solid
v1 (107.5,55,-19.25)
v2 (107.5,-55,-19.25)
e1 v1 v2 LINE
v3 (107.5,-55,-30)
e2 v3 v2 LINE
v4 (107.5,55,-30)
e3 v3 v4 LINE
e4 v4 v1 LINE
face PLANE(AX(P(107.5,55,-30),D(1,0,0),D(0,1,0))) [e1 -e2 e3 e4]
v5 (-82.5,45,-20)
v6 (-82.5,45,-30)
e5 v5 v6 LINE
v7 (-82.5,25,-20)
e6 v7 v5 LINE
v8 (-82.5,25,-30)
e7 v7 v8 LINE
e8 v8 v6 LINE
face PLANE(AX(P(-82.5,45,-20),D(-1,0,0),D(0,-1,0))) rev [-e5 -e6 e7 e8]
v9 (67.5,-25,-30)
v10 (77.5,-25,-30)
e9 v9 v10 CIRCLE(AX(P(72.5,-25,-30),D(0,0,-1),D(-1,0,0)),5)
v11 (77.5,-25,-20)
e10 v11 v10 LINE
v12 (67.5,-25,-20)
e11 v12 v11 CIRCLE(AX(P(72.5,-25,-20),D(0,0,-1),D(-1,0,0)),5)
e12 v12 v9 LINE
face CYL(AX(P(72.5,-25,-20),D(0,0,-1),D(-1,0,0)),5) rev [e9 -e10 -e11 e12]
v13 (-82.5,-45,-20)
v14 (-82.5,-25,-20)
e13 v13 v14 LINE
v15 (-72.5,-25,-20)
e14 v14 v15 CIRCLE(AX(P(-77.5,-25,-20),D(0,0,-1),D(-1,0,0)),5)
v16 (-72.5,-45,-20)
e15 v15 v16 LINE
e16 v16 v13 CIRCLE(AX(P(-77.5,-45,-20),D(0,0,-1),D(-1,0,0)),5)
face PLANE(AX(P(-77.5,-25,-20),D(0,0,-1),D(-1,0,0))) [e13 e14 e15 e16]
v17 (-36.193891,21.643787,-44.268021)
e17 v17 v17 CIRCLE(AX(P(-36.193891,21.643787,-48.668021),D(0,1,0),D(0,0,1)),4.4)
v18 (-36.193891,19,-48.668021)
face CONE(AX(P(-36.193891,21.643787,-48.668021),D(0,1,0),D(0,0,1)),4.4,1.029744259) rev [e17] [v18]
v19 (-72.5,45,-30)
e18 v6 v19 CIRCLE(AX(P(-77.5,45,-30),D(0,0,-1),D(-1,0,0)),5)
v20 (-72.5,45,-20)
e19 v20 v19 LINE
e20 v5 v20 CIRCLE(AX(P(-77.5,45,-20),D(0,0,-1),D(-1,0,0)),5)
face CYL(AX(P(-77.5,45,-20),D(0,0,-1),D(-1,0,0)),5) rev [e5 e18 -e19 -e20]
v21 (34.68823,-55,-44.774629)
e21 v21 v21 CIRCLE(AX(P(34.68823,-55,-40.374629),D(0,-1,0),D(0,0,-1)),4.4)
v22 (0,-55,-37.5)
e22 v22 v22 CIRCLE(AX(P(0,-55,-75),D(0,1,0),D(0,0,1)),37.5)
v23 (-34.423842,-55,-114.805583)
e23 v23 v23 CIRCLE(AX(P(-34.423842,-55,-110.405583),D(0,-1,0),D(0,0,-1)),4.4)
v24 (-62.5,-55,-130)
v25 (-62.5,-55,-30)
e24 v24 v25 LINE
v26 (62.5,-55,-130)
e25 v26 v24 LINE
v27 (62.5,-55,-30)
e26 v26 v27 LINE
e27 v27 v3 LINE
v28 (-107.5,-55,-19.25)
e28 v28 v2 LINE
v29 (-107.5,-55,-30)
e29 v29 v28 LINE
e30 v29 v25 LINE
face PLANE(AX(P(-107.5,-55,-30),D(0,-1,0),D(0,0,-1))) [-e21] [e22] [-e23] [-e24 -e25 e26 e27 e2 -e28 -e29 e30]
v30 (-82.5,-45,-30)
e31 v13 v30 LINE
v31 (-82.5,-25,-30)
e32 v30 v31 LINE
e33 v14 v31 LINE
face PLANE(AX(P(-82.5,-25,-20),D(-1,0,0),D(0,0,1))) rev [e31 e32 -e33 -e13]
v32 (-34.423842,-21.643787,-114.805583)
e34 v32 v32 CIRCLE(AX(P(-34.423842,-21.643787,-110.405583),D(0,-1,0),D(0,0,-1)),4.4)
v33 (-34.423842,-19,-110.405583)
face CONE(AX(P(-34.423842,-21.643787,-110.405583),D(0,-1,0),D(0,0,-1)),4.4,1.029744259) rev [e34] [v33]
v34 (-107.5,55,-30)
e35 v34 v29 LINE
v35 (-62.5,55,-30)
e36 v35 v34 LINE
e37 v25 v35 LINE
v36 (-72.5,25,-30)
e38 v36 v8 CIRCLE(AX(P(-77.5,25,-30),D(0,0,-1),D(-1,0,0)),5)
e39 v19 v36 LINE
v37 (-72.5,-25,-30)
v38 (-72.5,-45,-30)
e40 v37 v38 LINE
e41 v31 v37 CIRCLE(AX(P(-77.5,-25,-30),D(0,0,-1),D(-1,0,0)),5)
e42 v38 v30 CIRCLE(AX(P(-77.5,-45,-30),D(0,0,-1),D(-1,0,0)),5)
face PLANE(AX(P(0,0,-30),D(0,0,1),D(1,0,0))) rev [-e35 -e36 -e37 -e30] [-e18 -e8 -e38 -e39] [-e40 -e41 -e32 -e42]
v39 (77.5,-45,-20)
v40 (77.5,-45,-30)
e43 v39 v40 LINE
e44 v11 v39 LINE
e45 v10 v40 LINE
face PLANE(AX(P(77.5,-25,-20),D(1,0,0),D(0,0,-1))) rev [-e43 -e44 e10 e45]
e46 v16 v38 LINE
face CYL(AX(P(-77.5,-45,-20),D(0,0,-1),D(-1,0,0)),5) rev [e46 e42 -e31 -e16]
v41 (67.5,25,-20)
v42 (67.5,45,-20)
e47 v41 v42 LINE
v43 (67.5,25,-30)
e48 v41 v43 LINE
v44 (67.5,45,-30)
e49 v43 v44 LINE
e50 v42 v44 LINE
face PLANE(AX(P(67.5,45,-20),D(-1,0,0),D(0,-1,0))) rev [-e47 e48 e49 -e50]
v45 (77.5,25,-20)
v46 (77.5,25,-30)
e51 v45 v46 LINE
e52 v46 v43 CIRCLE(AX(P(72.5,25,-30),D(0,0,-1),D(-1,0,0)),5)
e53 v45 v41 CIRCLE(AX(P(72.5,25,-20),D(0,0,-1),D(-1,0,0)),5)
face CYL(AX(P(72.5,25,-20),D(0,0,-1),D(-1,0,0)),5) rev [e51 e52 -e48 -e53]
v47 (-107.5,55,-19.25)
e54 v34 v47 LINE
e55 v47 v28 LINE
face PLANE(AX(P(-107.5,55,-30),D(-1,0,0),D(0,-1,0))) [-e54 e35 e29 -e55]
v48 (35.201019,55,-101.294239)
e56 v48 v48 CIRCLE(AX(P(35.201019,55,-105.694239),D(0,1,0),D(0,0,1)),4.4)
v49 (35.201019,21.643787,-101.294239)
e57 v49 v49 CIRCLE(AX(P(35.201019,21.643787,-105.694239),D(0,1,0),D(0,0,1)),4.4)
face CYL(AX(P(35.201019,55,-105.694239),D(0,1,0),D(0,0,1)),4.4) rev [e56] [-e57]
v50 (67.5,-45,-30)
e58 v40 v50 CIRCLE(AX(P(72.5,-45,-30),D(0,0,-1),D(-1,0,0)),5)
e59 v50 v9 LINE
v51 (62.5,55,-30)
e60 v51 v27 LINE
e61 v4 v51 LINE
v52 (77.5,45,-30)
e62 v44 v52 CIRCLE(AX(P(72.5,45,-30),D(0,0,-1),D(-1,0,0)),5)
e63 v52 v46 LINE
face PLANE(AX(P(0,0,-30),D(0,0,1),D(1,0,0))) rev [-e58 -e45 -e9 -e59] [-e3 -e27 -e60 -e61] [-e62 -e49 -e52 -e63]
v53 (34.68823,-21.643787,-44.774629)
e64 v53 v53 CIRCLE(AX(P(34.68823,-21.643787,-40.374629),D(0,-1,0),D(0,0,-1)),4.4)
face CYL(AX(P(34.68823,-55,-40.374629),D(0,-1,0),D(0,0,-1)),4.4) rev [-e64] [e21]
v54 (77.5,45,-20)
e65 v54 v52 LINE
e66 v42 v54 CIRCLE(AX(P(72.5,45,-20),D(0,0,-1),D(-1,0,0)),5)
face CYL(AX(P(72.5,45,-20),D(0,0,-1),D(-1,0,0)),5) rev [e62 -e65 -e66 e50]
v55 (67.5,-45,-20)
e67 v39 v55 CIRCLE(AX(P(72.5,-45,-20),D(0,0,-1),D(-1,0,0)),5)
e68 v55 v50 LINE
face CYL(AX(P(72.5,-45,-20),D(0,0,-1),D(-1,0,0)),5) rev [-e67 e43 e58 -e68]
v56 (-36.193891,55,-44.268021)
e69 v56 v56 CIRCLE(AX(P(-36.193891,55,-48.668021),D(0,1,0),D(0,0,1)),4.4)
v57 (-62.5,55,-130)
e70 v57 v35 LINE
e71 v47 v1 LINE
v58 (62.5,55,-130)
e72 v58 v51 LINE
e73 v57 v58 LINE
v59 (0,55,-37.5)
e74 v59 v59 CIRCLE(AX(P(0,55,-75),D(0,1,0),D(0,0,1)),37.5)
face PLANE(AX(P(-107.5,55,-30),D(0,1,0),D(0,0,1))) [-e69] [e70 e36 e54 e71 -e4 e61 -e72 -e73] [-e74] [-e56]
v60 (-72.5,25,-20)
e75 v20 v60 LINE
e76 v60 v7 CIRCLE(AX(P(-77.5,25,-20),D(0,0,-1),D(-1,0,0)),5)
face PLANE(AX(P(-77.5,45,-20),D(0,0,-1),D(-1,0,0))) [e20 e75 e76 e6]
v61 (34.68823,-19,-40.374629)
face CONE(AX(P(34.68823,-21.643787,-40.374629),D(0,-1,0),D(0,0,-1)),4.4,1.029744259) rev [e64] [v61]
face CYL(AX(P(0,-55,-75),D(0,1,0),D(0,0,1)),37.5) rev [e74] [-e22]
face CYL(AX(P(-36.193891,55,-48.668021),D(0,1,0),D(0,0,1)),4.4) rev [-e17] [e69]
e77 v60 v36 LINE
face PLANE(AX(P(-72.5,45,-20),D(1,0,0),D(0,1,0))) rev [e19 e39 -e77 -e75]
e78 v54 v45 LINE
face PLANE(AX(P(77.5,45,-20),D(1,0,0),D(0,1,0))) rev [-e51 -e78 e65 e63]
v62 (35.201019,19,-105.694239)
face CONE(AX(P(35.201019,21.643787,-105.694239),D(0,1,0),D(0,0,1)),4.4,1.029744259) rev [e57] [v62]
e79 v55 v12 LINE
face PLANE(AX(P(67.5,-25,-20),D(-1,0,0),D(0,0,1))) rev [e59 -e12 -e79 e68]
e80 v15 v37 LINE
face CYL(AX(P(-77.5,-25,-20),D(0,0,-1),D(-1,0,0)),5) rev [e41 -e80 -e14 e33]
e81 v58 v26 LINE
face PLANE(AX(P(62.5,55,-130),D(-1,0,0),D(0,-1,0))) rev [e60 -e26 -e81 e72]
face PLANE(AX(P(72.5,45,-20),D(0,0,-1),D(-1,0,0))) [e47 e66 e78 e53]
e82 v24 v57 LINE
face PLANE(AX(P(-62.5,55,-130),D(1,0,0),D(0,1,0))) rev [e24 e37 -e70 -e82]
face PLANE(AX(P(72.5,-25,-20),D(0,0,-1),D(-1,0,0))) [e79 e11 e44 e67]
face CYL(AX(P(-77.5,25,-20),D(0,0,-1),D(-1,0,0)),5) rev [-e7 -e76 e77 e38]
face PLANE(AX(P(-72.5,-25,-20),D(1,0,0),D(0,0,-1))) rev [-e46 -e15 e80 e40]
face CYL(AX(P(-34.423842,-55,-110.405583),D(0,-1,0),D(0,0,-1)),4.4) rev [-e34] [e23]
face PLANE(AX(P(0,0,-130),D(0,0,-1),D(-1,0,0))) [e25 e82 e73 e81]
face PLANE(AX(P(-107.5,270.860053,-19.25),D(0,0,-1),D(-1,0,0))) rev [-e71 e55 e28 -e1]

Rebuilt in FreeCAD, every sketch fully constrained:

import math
import FreeCAD as App
import Part
import Sketcher

V = App.Vector
Q = App.Units.Quantity


def add_polygon(sketch, points):
    """Adds a closed chain of lines whose ends are joined by coincident constraints."""
    first, n = sketch.GeometryCount, len(points)
    for a, b in zip(points, points[1:] + points[:1]):
        sketch.addGeometry(Part.LineSegment(App.Vector(*a, 0), App.Vector(*b, 0)), False)
    for i in range(n):
        sketch.addConstraint(Sketcher.Constraint("Coincident", first + i, 2, first + (i + 1) % n, 1))

doc = App.newDocument("Part")
params = doc.addObject("Spreadsheet::Sheet", "Params")
for row, (alias, value) in enumerate([
    ("sketch1_width", "215 mm"),
    ("sketch1_height", "110 mm"),
    ("pad1_length", "30 mm"),
    ("sketch2_width", "125 mm"),
    ("sketch2_height", "110 mm"),
    ("pad2_length", "100 mm"),
    ("sketch3_diameter", "75 mm"),
    ("sketch4_width", "36 mm"),
    ("sketch4_height", "4.4 mm"),
    ("groove_angle", "360 deg"),
    ("linearpattern_pitch", "91.374082 mm"),
    ("linearpattern2_pitch", "110 mm"),
    ("sketch5_width", "36 mm"),
    ("sketch5_height", "4.4 mm"),
    ("groove2_angle", "360 deg"),
    ("sketch6_radius", "5 mm"),
    ("sketch6_height", "20 mm"),
    ("pocket2_length", "10 mm"),
    ("sketch7_diameter", "8.8 mm"),
    ("hole_diameter", "8.8 mm"),
    ("hole_depth", "33.356213 mm"),
    ("sketch8_width", "215 mm"),
    ("sketch8_height", "19.25 mm"),
    ("pocket3_length", "110 mm"),
], start=1):
    params.set(f"A{row}", alias)
    params.set(f"B{row}", "=" + value)
    params.setAlias(f"B{row}", alias)

body = doc.addObject("PartDesign::Body", "Body")

# Sketch on XY plane
sketch1 = body.newObject("Sketcher::SketchObject", "Sketch")
sketch1.AttachmentSupport = (doc.getObject("XY_Plane"), [""])
sketch1.MapMode = "FlatFace"
add_polygon(sketch1, [(-108, 55), (-108, -55), (108, -55), (108, 55)])  # lines 0-3
sketch1.addConstraint(Sketcher.Constraint("Vertical", 0))
sketch1.addConstraint(Sketcher.Constraint("Horizontal", 1))
sketch1.addConstraint(Sketcher.Constraint("Vertical", 2))
sketch1.addConstraint(Sketcher.Constraint("Horizontal", 3))
sketch1.addConstraint(Sketcher.Constraint("Symmetric", 0, 2, 2, 2, -1, 1))
sketch1.addConstraint(Sketcher.Constraint("DistanceX", 1, 1, 1, 2, 215.0))
sketch1.addConstraint(Sketcher.Constraint("DistanceY", 0, 2, 0, 1, 110.0))
sketch1.setExpression("Constraints[9]", "Params.sketch1_width")
sketch1.setExpression("Constraints[10]", "Params.sketch1_height")
pad1 = body.newObject("PartDesign::Pad", "Pad")
pad1.Profile = sketch1
pad1.setExpression("Length", "Params.pad1_length")
pad1.Reversed = True

# Sketch on XY plane
sketch2 = body.newObject("Sketcher::SketchObject", "Sketch001")
sketch2.AttachmentSupport = (doc.getObject("XY_Plane"), [""])
sketch2.MapMode = "FlatFace"
sketch2.AttachmentOffset = App.Placement(V(0, 0, -30), App.Rotation())
add_polygon(sketch2, [(62, 55), (62, -55), (-62, -55), (-62, 55)])  # lines 0-3
sketch2.addConstraint(Sketcher.Constraint("Vertical", 0))
sketch2.addConstraint(Sketcher.Constraint("Horizontal", 1))
sketch2.addConstraint(Sketcher.Constraint("Vertical", 2))
sketch2.addConstraint(Sketcher.Constraint("Horizontal", 3))
sketch2.addConstraint(Sketcher.Constraint("Symmetric", 0, 2, 2, 2, -1, 1))
sketch2.addConstraint(Sketcher.Constraint("DistanceX", 1, 2, 1, 1, 125.0))
sketch2.addConstraint(Sketcher.Constraint("DistanceY", 0, 2, 0, 1, 110.0))
sketch2.setExpression("Constraints[9]", "Params.sketch2_width")
sketch2.setExpression("Constraints[10]", "Params.sketch2_height")
pad2 = body.newObject("PartDesign::Pad", "Pad001")
pad2.Profile = sketch2
pad2.setExpression("Length", "Params.pad2_length")
pad2.Reversed = True

# Sketch on XZ plane
sketch3 = body.newObject("Sketcher::SketchObject", "Sketch002")
sketch3.AttachmentSupport = (doc.getObject("XZ_Plane"), [""])
sketch3.MapMode = "FlatFace"
sketch3.AttachmentOffset = App.Placement(V(0, 0, -55), App.Rotation())
sketch3.addGeometry(Part.Circle(V(0, -75, 0), V(0, 0, 1), 38), False)
sketch3.addConstraint(Sketcher.Constraint("PointOnObject", 0, 3, -2))
sketch3.addConstraint(Sketcher.Constraint("Diameter", 0, 75.0))
sketch3.addConstraint(Sketcher.Constraint("DistanceY", 0, 3, -1, 1, 75.0))
sketch3.setExpression("Constraints[1]", "Params.sketch3_diameter")
pocket1 = body.newObject("PartDesign::Pocket", "Pocket")
pocket1.Profile = sketch3
pocket1.Type = "ThroughAll"
pocket1.Reversed = True

# Sketch on YZ plane
sketch4 = body.newObject("Sketcher::SketchObject", "Sketch003")
sketch4.AttachmentSupport = (doc.getObject("YZ_Plane"), [""])
sketch4.MapMode = "FlatFace"
sketch4.AttachmentOffset = App.Placement(V(0, 0, -36.193891), App.Rotation())
add_polygon(sketch4, [(19, -48.7), (55, -48.7), (55, -44.3), (21.6, -44.3)])  # lines 0-3
sketch4.addGeometry(Part.LineSegment(V(55, -48.7, 0), V(19, -48.7, 0)), True)  # axis
sketch4.addConstraint(Sketcher.Constraint("Horizontal", 0))
sketch4.addConstraint(Sketcher.Constraint("Vertical", 1))
sketch4.addConstraint(Sketcher.Constraint("Horizontal", 2))
sketch4.addConstraint(Sketcher.Constraint("Horizontal", 4))
sketch4.addConstraint(Sketcher.Constraint("Coincident", 4, 1, 0, 2))
sketch4.addConstraint(Sketcher.Constraint("Equal", 0, 4))
sketch4.addConstraint(Sketcher.Constraint("DistanceX", 0, 1, 0, 2, 36.0))
sketch4.addConstraint(Sketcher.Constraint("Angle", 3, Q("-121 deg")))
sketch4.addConstraint(Sketcher.Constraint("DistanceY", 1, 1, 1, 2, 4.4))
sketch4.addConstraint(Sketcher.Constraint("DistanceX", -1, 1, 0, 2, 55.0))
sketch4.addConstraint(Sketcher.Constraint("DistanceY", 0, 2, -1, 1, 48.668021))
sketch4.setExpression("Constraints[10]", "Params.sketch4_width")
sketch4.setExpression("Constraints[12]", "Params.sketch4_height")
groove = body.newObject("PartDesign::Groove", "Groove")
groove.Profile = sketch4
groove.ReferenceAxis = (sketch4, ["Axis0"])
groove.setExpression("Angle", "Params.groove_angle")
doc.recompute()

datumline = body.newObject("PartDesign::Line", "DatumLine")
datumline.Placement = App.Placement(V(0, 0, 0), App.Rotation(V(0, 0, 1), V(0.781347502, 0, -0.624096212)))
linearpattern = body.newObject("PartDesign::LinearPattern", "LinearPattern")
linearpattern.Originals = [groove]
linearpattern.Direction = (datumline, [""])
linearpattern.Mode = "offset"
linearpattern.setExpression("Offset", "Params.linearpattern_pitch")
linearpattern.Occurrences = 2
body.Tip = linearpattern
doc.recompute()

linearpattern2 = body.newObject("PartDesign::LinearPattern", "LinearPattern001")
linearpattern2.Originals = [groove]
linearpattern2.Direction = (doc.getObject("Y_Axis"), [""])
linearpattern2.Mode = "offset"
linearpattern2.setExpression("Offset", "Params.linearpattern2_pitch")
linearpattern2.Occurrences = 2
body.Tip = linearpattern2

# Sketch on YZ plane
sketch5 = body.newObject("Sketcher::SketchObject", "Sketch004")
sketch5.AttachmentSupport = (doc.getObject("YZ_Plane"), [""])
sketch5.MapMode = "FlatFace"
sketch5.AttachmentOffset = App.Placement(V(0, 0, 35.201019), App.Rotation())
add_polygon(sketch5, [(129, -105.7), (165, -105.7), (165, -101.3), (131.6, -101.3)])  # lines 0-3
sketch5.addGeometry(Part.LineSegment(V(165, -105.7, 0), V(129, -105.7, 0)), True)  # axis
sketch5.addConstraint(Sketcher.Constraint("Horizontal", 0))
sketch5.addConstraint(Sketcher.Constraint("Vertical", 1))
sketch5.addConstraint(Sketcher.Constraint("Horizontal", 2))
sketch5.addConstraint(Sketcher.Constraint("Horizontal", 4))
sketch5.addConstraint(Sketcher.Constraint("Coincident", 4, 1, 0, 2))
sketch5.addConstraint(Sketcher.Constraint("Equal", 0, 4))
sketch5.addConstraint(Sketcher.Constraint("DistanceX", 0, 1, 0, 2, 36.0))
sketch5.addConstraint(Sketcher.Constraint("Angle", 3, Q("-121 deg")))
sketch5.addConstraint(Sketcher.Constraint("DistanceY", 1, 1, 1, 2, 4.4))
sketch5.addConstraint(Sketcher.Constraint("DistanceX", -1, 1, 0, 2, 165.0))
sketch5.addConstraint(Sketcher.Constraint("DistanceY", 0, 2, -1, 1, 105.694239))
sketch5.setExpression("Constraints[10]", "Params.sketch5_width")
sketch5.setExpression("Constraints[12]", "Params.sketch5_height")
groove2 = body.newObject("PartDesign::Groove", "Groove001")
groove2.Profile = sketch5
groove2.ReferenceAxis = (sketch5, ["Axis0"])
groove2.setExpression("Angle", "Params.groove2_angle")

# Sketch on XY plane
sketch6 = body.newObject("Sketcher::SketchObject", "Sketch005")
sketch6.AttachmentSupport = (doc.getObject("XY_Plane"), [""])
sketch6.MapMode = "FlatFace"
sketch6.AttachmentOffset = App.Placement(V(0, 0, -30), App.Rotation())
sketch6.addGeometry(Part.LineSegment(V(-82, 25, 0), V(-82, 45, 0)), False)
sketch6.addGeometry(Part.ArcOfCircle(Part.Circle(V(-78, 45, 0), V(0, 0, 1), 5), math.radians(0), math.radians(180)), False)
sketch6.addGeometry(Part.LineSegment(V(-72, 45, 0), V(-72, 25, 0)), False)
sketch6.addGeometry(Part.ArcOfCircle(Part.Circle(V(-78, 25, 0), V(0, 0, 1), 5), math.radians(180), math.radians(360)), False)
sketch6.addGeometry(Part.LineSegment(V(68, 25, 0), V(68, 45, 0)), False)
sketch6.addGeometry(Part.ArcOfCircle(Part.Circle(V(72, 45, 0), V(0, 0, 1), 5), math.radians(0), math.radians(180)), False)
sketch6.addGeometry(Part.LineSegment(V(78, 45, 0), V(78, 25, 0)), False)
sketch6.addGeometry(Part.ArcOfCircle(Part.Circle(V(72, 25, 0), V(0, 0, 1), 5), math.radians(180), math.radians(360)), False)
sketch6.addGeometry(Part.LineSegment(V(-82, -45, 0), V(-82, -25, 0)), False)
sketch6.addGeometry(Part.ArcOfCircle(Part.Circle(V(-78, -25, 0), V(0, 0, 1), 5), math.radians(0), math.radians(180)), False)
sketch6.addGeometry(Part.LineSegment(V(-72, -25, 0), V(-72, -45, 0)), False)
sketch6.addGeometry(Part.ArcOfCircle(Part.Circle(V(-78, -45, 0), V(0, 0, 1), 5), math.radians(180), math.radians(360)), False)
sketch6.addGeometry(Part.LineSegment(V(68, -45, 0), V(68, -25, 0)), False)
sketch6.addGeometry(Part.ArcOfCircle(Part.Circle(V(72, -25, 0), V(0, 0, 1), 5), math.radians(0), math.radians(180)), False)
sketch6.addGeometry(Part.LineSegment(V(78, -25, 0), V(78, -45, 0)), False)
sketch6.addGeometry(Part.ArcOfCircle(Part.Circle(V(72, -45, 0), V(0, 0, 1), 5), math.radians(180), math.radians(360)), False)
sketch6.addConstraint(Sketcher.Constraint("Tangent", 0, 2, 1, 2))
sketch6.addConstraint(Sketcher.Constraint("Tangent", 1, 1, 2, 1))
sketch6.addConstraint(Sketcher.Constraint("Tangent", 2, 2, 3, 2))
sketch6.addConstraint(Sketcher.Constraint("Tangent", 3, 1, 0, 1))
sketch6.addConstraint(Sketcher.Constraint("Tangent", 4, 2, 5, 2))
sketch6.addConstraint(Sketcher.Constraint("Tangent", 5, 1, 6, 1))
sketch6.addConstraint(Sketcher.Constraint("Tangent", 6, 2, 7, 2))
sketch6.addConstraint(Sketcher.Constraint("Tangent", 7, 1, 4, 1))
sketch6.addConstraint(Sketcher.Constraint("Tangent", 8, 2, 9, 2))
sketch6.addConstraint(Sketcher.Constraint("Tangent", 9, 1, 10, 1))
sketch6.addConstraint(Sketcher.Constraint("Tangent", 10, 2, 11, 2))
sketch6.addConstraint(Sketcher.Constraint("Tangent", 11, 1, 8, 1))
sketch6.addConstraint(Sketcher.Constraint("Tangent", 12, 2, 13, 2))
sketch6.addConstraint(Sketcher.Constraint("Tangent", 13, 1, 14, 1))
sketch6.addConstraint(Sketcher.Constraint("Tangent", 14, 2, 15, 2))
sketch6.addConstraint(Sketcher.Constraint("Tangent", 15, 1, 12, 1))
sketch6.addConstraint(Sketcher.Constraint("Vertical", 0))
sketch6.addConstraint(Sketcher.Constraint("Vertical", 2))
sketch6.addConstraint(Sketcher.Constraint("Vertical", 4))
sketch6.addConstraint(Sketcher.Constraint("Vertical", 6))
sketch6.addConstraint(Sketcher.Constraint("Vertical", 8))
sketch6.addConstraint(Sketcher.Constraint("Vertical", 10))
sketch6.addConstraint(Sketcher.Constraint("Vertical", 12))
sketch6.addConstraint(Sketcher.Constraint("Vertical", 14))
sketch6.addConstraint(Sketcher.Constraint("Equal", 3, 5))
sketch6.addConstraint(Sketcher.Constraint("Equal", 7, 9))
sketch6.addConstraint(Sketcher.Constraint("Equal", 11, 13))
sketch6.addConstraint(Sketcher.Constraint("Symmetric", 3, 3, 9, 3, -1))
sketch6.addConstraint(Sketcher.Constraint("Symmetric", 7, 3, 13, 3, -1))
sketch6.addConstraint(Sketcher.Constraint("Horizontal", 1, 3, 5, 3))
sketch6.addConstraint(Sketcher.Constraint("Horizontal", 3, 3, 7, 3))
sketch6.addConstraint(Sketcher.Constraint("Horizontal", 11, 3, 15, 3))
sketch6.addConstraint(Sketcher.Constraint("Equal", 6, 8))
sketch6.addConstraint(Sketcher.Constraint("Radius", 1, 5.0))
sketch6.addConstraint(Sketcher.Constraint("DistanceY", 0, 1, 0, 2, 20.0))
sketch6.addConstraint(Sketcher.Constraint("DistanceY", -1, 1, 1, 3, 45.0))
sketch6.addConstraint(Sketcher.Constraint("DistanceX", 1, 3, 5, 3, 150.0))
sketch6.addConstraint(Sketcher.Constraint("DistanceX", 1, 3, -1, 1, 77.5))
sketch6.setExpression("Constraints[33]", "Params.sketch6_radius")
sketch6.setExpression("Constraints[34]", "Params.sketch6_height")
pocket2 = body.newObject("PartDesign::Pocket", "Pocket001")
pocket2.Profile = sketch6
pocket2.setExpression("Length", "Params.pocket2_length")
pocket2.Reversed = True

# Sketch on XZ plane
sketch7 = body.newObject("Sketcher::SketchObject", "Sketch006")
sketch7.AttachmentSupport = (doc.getObject("XZ_Plane"), [""])
sketch7.MapMode = "FlatFace"
sketch7.AttachmentOffset = App.Placement(V(0, 0, 55), App.Rotation())
sketch7.addGeometry(Part.Circle(V(34.7, -40.4, 0), V(0, 0, 1), 4.4), False)
sketch7.addGeometry(Part.Circle(V(-34.4, -110.4, 0), V(0, 0, 1), 4.4), False)
sketch7.addConstraint(Sketcher.Constraint("Equal", 0, 1))
sketch7.addConstraint(Sketcher.Constraint("Diameter", 0, 8.8))
sketch7.addConstraint(Sketcher.Constraint("DistanceX", -1, 1, 0, 3, 34.68823))
sketch7.addConstraint(Sketcher.Constraint("DistanceY", 0, 3, -1, 1, 40.374629))
sketch7.addConstraint(Sketcher.Constraint("DistanceX", 1, 3, -1, 1, 34.423842))
sketch7.addConstraint(Sketcher.Constraint("DistanceY", 1, 3, -1, 1, 110.405583))
sketch7.setExpression("Constraints[1]", "Params.sketch7_diameter")
doc.recompute()
hole = body.newObject("PartDesign::Hole", "Hole")
hole.Profile = sketch7
hole.ThreadType = "None"
hole.setExpression("Diameter", "Params.hole_diameter")
hole.DepthType = "Dimension"
hole.setExpression("Depth", "Params.hole_depth")
hole.DrillPoint = "Angled"
hole.DrillPointAngle = 118

# Sketch on XZ plane
sketch8 = body.newObject("Sketcher::SketchObject", "Sketch007")
sketch8.AttachmentSupport = (doc.getObject("XZ_Plane"), [""])
sketch8.MapMode = "FlatFace"
sketch8.AttachmentOffset = App.Placement(V(0, 0, 55), App.Rotation())
add_polygon(sketch8, [(-108, 0), (-108, -19), (108, -19), (108, 0)])  # lines 0-3
sketch8.addConstraint(Sketcher.Constraint("Vertical", 0))
sketch8.addConstraint(Sketcher.Constraint("Horizontal", 1))
sketch8.addConstraint(Sketcher.Constraint("Vertical", 2))
sketch8.addConstraint(Sketcher.Constraint("Horizontal", 3))
sketch8.addConstraint(Sketcher.Constraint("Symmetric", 2, 2, 3, 2, -1, 1))
sketch8.addConstraint(Sketcher.Constraint("DistanceX", 1, 1, 1, 2, 215.0))
sketch8.addConstraint(Sketcher.Constraint("DistanceY", 0, 2, 0, 1, 19.25))
sketch8.setExpression("Constraints[9]", "Params.sketch8_width")
sketch8.setExpression("Constraints[10]", "Params.sketch8_height")
pocket3 = body.newObject("PartDesign::Pocket", "Pocket002")
pocket3.Profile = sketch8
pocket3.setExpression("Length", "Params.pocket3_length")

doc.recompute()
